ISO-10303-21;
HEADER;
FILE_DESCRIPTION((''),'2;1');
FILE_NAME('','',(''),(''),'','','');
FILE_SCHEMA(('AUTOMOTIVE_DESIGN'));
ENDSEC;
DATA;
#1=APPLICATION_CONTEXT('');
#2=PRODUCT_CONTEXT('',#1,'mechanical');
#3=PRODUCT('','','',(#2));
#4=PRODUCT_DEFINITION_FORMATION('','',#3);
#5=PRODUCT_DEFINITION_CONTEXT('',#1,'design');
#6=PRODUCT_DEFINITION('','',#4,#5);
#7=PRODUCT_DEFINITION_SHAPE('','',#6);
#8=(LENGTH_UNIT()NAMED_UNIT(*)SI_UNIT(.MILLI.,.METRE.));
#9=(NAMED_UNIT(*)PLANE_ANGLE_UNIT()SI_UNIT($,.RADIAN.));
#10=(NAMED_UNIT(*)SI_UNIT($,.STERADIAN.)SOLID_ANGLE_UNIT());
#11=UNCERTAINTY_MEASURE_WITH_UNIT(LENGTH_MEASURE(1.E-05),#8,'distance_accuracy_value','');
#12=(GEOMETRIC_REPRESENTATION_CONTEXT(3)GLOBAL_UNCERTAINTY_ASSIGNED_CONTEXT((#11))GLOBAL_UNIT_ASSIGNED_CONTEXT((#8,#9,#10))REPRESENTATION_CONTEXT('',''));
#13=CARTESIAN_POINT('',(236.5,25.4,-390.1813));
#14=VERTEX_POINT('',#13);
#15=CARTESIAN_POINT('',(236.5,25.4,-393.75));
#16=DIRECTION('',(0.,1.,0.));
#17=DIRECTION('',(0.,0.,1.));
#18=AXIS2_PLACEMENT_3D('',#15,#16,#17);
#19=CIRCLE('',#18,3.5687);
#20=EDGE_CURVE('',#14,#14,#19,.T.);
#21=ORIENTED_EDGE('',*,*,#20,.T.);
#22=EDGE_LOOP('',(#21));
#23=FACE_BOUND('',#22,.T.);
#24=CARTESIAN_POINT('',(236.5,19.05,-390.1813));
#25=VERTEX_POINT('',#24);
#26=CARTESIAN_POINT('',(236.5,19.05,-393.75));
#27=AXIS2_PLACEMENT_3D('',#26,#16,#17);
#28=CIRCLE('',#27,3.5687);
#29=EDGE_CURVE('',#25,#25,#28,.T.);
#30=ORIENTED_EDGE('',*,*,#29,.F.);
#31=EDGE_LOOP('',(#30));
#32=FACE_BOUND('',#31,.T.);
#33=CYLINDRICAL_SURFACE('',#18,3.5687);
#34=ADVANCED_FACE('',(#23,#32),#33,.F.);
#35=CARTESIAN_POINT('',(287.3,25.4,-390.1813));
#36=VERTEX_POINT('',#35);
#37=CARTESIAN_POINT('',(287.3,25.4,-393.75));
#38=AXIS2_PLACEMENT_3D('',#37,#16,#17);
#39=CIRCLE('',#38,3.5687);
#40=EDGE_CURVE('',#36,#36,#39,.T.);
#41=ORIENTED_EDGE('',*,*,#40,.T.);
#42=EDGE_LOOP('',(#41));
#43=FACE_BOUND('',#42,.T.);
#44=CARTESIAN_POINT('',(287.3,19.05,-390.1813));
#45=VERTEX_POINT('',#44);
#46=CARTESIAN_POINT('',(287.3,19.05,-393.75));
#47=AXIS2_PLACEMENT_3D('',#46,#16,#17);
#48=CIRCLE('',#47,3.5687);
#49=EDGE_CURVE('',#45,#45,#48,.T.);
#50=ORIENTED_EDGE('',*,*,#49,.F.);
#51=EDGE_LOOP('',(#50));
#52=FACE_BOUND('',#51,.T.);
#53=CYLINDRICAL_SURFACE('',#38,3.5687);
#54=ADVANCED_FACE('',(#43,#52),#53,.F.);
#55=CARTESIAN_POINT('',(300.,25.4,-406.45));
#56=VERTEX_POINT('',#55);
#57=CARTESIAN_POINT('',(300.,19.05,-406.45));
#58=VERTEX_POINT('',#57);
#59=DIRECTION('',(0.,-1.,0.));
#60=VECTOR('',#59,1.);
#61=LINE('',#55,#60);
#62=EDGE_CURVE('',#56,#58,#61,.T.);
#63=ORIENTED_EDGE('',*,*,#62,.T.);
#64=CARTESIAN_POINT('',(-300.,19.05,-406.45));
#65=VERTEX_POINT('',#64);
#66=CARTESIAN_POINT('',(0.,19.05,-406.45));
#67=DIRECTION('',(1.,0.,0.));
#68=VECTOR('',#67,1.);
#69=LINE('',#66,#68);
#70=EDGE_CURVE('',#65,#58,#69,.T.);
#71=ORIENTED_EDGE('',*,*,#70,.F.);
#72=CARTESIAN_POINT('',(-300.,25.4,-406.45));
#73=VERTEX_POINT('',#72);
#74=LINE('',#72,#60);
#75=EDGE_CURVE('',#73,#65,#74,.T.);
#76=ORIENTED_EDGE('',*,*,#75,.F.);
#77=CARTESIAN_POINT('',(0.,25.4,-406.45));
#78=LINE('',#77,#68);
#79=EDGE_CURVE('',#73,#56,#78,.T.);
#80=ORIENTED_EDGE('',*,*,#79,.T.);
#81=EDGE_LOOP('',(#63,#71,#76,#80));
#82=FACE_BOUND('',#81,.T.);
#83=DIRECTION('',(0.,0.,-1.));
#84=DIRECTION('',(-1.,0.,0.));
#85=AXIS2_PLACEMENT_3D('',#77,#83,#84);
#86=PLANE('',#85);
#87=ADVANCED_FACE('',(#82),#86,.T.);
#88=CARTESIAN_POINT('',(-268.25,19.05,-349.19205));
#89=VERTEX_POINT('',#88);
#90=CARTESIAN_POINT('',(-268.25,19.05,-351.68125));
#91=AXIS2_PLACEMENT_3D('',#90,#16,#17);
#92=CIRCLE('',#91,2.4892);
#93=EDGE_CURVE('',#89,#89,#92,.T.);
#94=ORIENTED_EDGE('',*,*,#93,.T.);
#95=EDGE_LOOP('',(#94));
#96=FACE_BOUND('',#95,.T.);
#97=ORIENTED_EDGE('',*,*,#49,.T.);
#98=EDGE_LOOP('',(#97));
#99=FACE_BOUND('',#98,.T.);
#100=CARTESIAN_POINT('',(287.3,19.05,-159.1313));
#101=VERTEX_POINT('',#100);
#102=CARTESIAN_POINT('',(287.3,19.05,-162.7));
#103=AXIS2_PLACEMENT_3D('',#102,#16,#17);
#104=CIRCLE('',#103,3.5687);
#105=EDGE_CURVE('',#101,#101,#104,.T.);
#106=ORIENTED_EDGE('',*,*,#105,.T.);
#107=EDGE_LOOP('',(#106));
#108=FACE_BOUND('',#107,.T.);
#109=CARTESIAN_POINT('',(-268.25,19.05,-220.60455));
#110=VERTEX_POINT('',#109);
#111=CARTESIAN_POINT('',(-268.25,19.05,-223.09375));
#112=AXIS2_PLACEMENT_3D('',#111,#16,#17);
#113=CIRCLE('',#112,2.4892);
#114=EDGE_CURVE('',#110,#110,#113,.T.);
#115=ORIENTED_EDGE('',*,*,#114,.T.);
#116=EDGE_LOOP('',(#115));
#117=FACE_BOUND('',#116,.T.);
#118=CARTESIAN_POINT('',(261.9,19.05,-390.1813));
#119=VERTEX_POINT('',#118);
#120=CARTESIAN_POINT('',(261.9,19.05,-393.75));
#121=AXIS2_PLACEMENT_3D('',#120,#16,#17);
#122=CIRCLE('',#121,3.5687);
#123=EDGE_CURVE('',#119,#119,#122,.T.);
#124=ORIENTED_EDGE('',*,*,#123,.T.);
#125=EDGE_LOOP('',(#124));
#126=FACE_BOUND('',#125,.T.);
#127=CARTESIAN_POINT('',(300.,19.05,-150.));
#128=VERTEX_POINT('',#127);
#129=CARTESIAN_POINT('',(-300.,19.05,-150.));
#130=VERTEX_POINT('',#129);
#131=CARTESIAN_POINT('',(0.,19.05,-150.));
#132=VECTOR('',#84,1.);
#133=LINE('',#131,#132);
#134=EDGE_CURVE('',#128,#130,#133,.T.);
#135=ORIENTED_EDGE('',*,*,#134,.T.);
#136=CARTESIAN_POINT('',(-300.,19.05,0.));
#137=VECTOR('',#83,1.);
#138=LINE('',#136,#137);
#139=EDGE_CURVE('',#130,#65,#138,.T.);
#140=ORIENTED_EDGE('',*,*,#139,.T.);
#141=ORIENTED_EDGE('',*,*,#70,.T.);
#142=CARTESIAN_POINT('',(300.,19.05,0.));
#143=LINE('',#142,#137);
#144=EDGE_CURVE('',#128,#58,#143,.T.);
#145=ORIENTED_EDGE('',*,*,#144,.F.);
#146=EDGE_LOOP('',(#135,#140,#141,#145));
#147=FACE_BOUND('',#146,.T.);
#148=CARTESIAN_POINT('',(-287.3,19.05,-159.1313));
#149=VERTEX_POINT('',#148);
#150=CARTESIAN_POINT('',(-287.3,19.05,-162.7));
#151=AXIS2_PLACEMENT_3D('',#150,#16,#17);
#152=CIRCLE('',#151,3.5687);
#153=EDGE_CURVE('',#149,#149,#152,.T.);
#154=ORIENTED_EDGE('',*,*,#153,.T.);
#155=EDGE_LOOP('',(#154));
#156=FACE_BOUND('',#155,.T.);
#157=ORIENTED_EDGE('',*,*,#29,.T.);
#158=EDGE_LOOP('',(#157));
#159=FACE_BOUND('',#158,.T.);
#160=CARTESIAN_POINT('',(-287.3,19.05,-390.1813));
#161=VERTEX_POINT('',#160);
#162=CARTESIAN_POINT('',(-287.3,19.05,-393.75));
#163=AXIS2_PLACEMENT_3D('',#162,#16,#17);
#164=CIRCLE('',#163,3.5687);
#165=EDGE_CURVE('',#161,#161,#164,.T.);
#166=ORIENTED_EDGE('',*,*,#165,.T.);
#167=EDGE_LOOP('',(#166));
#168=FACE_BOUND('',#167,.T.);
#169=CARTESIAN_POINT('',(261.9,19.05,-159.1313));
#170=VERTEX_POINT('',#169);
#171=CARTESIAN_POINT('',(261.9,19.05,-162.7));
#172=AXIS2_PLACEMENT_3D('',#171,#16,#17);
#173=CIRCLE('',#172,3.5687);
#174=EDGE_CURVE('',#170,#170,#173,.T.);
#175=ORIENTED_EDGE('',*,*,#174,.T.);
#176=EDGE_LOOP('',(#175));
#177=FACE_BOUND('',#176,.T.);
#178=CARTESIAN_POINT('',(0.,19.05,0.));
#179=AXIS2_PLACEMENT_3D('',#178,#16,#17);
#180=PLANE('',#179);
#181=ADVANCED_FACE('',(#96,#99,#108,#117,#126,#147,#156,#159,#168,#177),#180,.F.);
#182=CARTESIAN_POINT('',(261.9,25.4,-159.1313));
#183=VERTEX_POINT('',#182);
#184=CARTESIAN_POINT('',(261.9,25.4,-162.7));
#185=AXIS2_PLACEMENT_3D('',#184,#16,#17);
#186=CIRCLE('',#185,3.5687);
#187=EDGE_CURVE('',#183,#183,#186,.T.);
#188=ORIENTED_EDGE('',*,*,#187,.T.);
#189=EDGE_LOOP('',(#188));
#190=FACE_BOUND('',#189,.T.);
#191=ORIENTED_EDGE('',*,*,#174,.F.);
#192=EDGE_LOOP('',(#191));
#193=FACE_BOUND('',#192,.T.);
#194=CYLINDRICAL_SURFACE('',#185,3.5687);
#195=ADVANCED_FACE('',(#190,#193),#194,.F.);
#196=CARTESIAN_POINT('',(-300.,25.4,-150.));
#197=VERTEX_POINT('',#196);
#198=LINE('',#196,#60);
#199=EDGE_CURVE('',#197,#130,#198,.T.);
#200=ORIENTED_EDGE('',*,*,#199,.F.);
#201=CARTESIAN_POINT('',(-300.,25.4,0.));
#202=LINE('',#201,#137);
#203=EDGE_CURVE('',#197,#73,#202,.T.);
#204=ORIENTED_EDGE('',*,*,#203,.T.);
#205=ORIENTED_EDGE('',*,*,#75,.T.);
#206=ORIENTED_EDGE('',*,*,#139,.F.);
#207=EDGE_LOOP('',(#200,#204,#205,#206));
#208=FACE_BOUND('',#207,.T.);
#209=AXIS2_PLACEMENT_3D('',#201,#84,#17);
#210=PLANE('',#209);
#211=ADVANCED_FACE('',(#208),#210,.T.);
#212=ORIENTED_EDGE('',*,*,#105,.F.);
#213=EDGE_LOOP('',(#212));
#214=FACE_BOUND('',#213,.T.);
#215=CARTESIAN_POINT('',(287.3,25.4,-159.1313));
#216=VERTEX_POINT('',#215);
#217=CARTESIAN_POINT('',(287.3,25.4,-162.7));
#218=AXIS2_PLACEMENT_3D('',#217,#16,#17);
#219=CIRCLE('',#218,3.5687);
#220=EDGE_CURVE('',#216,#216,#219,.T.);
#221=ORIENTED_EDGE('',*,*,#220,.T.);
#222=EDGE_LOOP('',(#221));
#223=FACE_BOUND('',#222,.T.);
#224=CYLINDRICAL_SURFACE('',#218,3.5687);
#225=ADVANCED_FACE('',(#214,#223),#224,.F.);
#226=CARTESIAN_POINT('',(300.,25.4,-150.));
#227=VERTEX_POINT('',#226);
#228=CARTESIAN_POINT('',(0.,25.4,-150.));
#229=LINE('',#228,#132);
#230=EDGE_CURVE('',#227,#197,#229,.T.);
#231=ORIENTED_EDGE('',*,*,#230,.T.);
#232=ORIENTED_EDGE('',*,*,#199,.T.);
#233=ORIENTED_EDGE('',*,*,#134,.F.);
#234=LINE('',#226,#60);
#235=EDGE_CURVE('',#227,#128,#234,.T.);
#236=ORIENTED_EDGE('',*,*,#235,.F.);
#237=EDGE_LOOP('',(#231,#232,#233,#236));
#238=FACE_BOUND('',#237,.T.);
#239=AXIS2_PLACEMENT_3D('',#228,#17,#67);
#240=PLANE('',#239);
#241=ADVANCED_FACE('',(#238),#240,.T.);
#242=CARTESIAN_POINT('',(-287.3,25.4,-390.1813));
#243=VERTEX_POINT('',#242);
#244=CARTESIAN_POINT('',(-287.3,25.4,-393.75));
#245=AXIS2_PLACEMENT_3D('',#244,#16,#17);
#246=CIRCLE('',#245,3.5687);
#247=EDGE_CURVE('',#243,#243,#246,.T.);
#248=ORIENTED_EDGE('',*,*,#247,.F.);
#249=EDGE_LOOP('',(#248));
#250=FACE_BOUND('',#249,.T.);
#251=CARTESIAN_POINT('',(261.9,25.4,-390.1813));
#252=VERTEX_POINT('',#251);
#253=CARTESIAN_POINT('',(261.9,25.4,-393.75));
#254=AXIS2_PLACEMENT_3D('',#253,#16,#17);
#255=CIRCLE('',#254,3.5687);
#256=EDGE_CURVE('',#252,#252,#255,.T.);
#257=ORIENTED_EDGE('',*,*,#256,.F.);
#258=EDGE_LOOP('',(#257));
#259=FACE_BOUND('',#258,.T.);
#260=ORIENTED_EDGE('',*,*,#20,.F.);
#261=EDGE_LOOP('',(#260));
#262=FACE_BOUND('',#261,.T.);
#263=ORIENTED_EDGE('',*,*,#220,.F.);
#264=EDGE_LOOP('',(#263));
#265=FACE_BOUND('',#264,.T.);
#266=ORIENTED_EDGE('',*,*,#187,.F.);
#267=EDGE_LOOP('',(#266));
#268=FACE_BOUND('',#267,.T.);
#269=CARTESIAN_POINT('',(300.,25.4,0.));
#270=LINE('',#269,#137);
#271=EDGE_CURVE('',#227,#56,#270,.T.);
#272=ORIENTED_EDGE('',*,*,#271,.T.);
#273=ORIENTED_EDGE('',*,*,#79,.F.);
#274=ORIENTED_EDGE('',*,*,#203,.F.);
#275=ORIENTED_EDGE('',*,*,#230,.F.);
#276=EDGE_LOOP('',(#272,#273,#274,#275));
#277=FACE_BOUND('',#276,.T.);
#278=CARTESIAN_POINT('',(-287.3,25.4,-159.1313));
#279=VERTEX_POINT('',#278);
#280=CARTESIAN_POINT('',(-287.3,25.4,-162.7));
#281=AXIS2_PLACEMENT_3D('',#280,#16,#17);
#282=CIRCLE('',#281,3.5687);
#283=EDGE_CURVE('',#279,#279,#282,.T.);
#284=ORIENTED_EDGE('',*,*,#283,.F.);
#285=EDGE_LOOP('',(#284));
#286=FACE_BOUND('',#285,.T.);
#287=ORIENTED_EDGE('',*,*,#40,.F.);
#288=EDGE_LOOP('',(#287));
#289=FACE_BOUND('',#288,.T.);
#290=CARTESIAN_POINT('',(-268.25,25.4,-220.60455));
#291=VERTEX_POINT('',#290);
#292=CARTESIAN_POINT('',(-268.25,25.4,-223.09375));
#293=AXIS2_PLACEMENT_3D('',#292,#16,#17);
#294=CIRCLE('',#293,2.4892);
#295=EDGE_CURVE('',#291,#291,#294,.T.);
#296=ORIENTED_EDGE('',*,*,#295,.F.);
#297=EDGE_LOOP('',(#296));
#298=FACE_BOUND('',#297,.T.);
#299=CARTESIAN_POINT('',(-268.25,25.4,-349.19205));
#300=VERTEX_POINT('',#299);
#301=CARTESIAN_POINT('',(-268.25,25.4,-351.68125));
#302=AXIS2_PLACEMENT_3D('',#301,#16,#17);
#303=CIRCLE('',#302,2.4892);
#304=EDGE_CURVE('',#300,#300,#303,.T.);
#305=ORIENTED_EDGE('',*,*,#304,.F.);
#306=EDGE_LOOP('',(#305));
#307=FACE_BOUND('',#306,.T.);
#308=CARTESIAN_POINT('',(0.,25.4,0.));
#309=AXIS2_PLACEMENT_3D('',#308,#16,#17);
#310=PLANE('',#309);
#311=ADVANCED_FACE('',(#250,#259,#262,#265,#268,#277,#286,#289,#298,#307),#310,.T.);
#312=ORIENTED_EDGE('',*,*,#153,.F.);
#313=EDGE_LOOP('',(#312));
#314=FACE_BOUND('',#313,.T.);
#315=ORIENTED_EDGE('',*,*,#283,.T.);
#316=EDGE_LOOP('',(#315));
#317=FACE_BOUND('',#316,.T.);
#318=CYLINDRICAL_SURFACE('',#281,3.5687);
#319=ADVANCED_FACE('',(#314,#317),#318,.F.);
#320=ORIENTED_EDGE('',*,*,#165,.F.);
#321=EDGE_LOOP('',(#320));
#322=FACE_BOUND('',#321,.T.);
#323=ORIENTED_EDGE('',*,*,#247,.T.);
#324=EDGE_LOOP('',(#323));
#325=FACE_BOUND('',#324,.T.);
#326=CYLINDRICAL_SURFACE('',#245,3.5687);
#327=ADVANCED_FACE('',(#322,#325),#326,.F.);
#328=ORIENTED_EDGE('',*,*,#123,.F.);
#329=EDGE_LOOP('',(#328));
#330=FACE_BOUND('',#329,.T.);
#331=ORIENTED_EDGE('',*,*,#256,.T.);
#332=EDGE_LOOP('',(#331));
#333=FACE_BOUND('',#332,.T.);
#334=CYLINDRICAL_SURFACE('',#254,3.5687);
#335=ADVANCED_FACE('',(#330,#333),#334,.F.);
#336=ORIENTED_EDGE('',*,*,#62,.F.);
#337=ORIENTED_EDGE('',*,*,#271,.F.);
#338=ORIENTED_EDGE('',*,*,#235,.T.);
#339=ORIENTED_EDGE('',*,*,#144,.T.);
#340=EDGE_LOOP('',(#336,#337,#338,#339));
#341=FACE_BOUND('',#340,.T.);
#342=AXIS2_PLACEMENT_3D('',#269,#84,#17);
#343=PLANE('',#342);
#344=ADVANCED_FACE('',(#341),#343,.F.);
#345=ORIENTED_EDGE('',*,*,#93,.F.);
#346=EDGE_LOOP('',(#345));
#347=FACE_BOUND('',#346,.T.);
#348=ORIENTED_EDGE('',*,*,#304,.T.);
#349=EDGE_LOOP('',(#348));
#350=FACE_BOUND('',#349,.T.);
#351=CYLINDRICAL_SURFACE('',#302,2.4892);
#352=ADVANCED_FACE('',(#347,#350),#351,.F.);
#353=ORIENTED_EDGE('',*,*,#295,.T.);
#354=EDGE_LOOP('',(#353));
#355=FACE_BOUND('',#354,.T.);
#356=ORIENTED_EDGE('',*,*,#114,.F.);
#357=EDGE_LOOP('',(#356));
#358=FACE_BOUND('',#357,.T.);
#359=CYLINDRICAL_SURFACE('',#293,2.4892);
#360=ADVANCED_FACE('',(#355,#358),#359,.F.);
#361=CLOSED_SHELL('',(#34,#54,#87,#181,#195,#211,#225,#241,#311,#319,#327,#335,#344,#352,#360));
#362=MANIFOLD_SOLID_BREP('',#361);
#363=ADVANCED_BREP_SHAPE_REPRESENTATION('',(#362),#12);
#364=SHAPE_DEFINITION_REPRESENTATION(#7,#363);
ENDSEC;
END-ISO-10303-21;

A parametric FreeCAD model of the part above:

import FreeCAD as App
import Part
import Sketcher

V = App.Vector
Q = App.Units.Quantity


def edges_at(feature, points):
    """Names of the edges that pass closest to the given points."""
    edges = feature.Shape.Edges
    near = lambda p: min(range(len(edges)), key=lambda i: edges[i].distToShape(Part.Vertex(*p))[0])
    return sorted({f"Edge{near(p) + 1}" for p in points})

doc = App.newDocument("Part")
params = doc.addObject("Spreadsheet::Sheet", "Params")
for row, (alias, value) in enumerate([
    ("pad1_length", "0.25 in"),
    ("sketch2_width", "0.25 in"),
    ("groove_angle", "360 deg"),
    ("linearpattern_pitch", "231.05 mm"),
    ("linearpattern2_pitch", "595.822744 mm"),
    ("linearpattern3_pitch", "619.313541 mm"),
    ("linearpattern4_pitch", "523.8 mm"),
    ("linearpattern5_pitch", "549.2 mm"),
    ("linearpattern6_pitch", "574.6 mm"),
    ("sketch3_width", "0.25 in"),
    ("sketch3_height", "0.098 in"),
    ("groove2_angle", "360 deg"),
    ("linearpattern7_pitch", "5.0625 in"),
    ("pad2_length", "0.25 in"),
    ("sketch5_width", "0.25 in"),
    ("groove3_angle", "360 deg"),
    ("linearpattern8_pitch", "1 in"),
    ("linearpattern9_pitch", "2 in"),
    ("linearpattern10_pitch", "231.05 mm"),
    ("linearpattern11_pitch", "487.872235 mm"),
    ("linearpattern12_pitch", "476.368699 mm"),
    ("linearpattern13_pitch", "429.692 mm"),
    ("sketch6_width", "0.25 in"),
    ("sketch6_height", "0.098 in"),
    ("groove4_angle", "360 deg"),
    ("linearpattern14_pitch", "5.0625 in"),
    ("pad3_length", "0.25 in"),
    ("sketch8_width", "0.25 in"),
    ("groove5_angle", "360 deg"),
    ("linearpattern15_pitch", "1 in"),
    ("linearpattern16_pitch", "249.2 mm"),
    ("linearpattern17_pitch", "496.72513 mm"),
    ("linearpattern18_pitch", "429.692 mm"),
    ("linearpattern19_pitch", "430.442069 mm"),
    ("sketch9_width", "2 in"),
    ("sketch9_width2", "1 in"),
    ("sketch9_diameter", "0.281 in"),
    ("pad4_length", "0.25 in"),
    ("fillet_radius", "0.25 in"),
    ("sketch10_width", "6 in"),
    ("sketch10_height", "1 in"),
    ("sketch10_diameter", "0.281 in"),
    ("pad5_length", "0.25 in"),
    ("sketch11_width", "1 in"),
    ("sketch11_height", "4 in"),
    ("sketch11_diameter", "0.281 in"),
    ("pad6_length", "0.25 in"),
], start=1):
    params.set(f"A{row}", alias)
    params.set(f"B{row}", "=" + value)
    params.setAlias(f"B{row}", alias)

body = doc.addObject("PartDesign::Body", "Body")

# Sketch on XZ plane
sketch1 = body.newObject("Sketcher::SketchObject", "Sketch")
sketch1.AttachmentSupport = (doc.getObject("XZ_Plane"), [""])
sketch1.MapMode = "FlatFace"
sketch1.AttachmentOffset = App.Placement(V(0, 0, -0.75 * 25.4), App.Rotation())
sketch1.addGeometry([
    Part.LineSegment(V(-300, -406, 0), V(-300, -150, 0)),
    Part.LineSegment(V(-300, -150, 0), V(300, -150, 0)),
    Part.LineSegment(V(300, -150, 0), V(300, -406, 0)),
    Part.LineSegment(V(300, -406, 0), V(-300, -406, 0)),
], False)
sketch1.addConstraint([
    Sketcher.Constraint("Coincident", 0, 2, 1, 1),
    Sketcher.Constraint("Coincident", 1, 2, 2, 1),
    Sketcher.Constraint("Coincident", 2, 2, 3, 1),
    Sketcher.Constraint("Coincident", 3, 2, 0, 1),
    Sketcher.Constraint("Vertical", 0),
    Sketcher.Constraint("Horizontal", 1),
    Sketcher.Constraint("Vertical", 2),
    Sketcher.Constraint("Horizontal", 3),
    Sketcher.Constraint("DistanceX", 1, 1, 1, 2, Q("600 mm")),
    Sketcher.Constraint("DistanceY", 0, 1, 0, 2, Q("256.45 mm")),
    Sketcher.Constraint("DistanceX", 0, 2, -1, 1, Q("300 mm")),
    Sketcher.Constraint("DistanceY", 0, 2, -1, 1, Q("150 mm")),
])
pad1 = body.newObject("PartDesign::Pad", "Pad")
pad1.Profile = sketch1
pad1.setExpression("Length", "Params.pad1_length")
pad1.Reversed = True

# Sketch on YZ plane
sketch2 = body.newObject("Sketcher::SketchObject", "Sketch001")
sketch2.AttachmentSupport = (doc.getObject("YZ_Plane"), [""])
sketch2.MapMode = "FlatFace"
sketch2.AttachmentOffset = App.Placement(V(0, 0, -287.3), App.Rotation())
sketch2.addGeometry([
    Part.LineSegment(V(19.1, -393.8, 0), V(25.4, -393.8, 0)),
    Part.LineSegment(V(25.4, -393.8, 0), V(25.4, -390.2, 0)),
    Part.LineSegment(V(25.4, -390.2, 0), V(19.1, -390.2, 0)),
    Part.LineSegment(V(19.1, -390.2, 0), V(19.1, -393.8, 0)),
], False)
sketch2.addGeometry(Part.LineSegment(V(25.4, -393.8, 0), V(19.1, -393.8, 0)), True)  # axis
sketch2.addConstraint([
    Sketcher.Constraint("Coincident", 0, 2, 1, 1),
    Sketcher.Constraint("Coincident", 1, 2, 2, 1),
    Sketcher.Constraint("Coincident", 2, 2, 3, 1),
    Sketcher.Constraint("Coincident", 3, 2, 0, 1),
    Sketcher.Constraint("Horizontal", 0),
    Sketcher.Constraint("Vertical", 1),
    Sketcher.Constraint("Horizontal", 2),
    Sketcher.Constraint("Vertical", 3),
    Sketcher.Constraint("Horizontal", 4),
    Sketcher.Constraint("Coincident", 4, 1, 0, 2),
    Sketcher.Constraint("Vertical", 2, 2, 4, 2),
    Sketcher.Constraint("DistanceX", -1, 1, 0, 2, Q("1 in")),
    Sketcher.Constraint("DistanceX", 0, 1, 0, 2, Q("0.25 in")),
    Sketcher.Constraint("DistanceY", 1, 1, 1, 2, Q("0.1405 in")),
    Sketcher.Constraint("DistanceY", 0, 2, -1, 1, Q("393.75 mm")),
])
sketch2.setExpression("Constraints[12]", "Params.sketch2_width")
groove = body.newObject("PartDesign::Groove", "Groove")
groove.Profile = sketch2
groove.ReferenceAxis = (sketch2, ["Axis0"])
groove.setExpression("Angle", "Params.groove_angle")
doc.recompute()

linearpattern = body.newObject("PartDesign::LinearPattern", "LinearPattern")
linearpattern.Originals = [groove]
linearpattern.Direction = (doc.getObject("Z_Axis"), [""])
linearpattern.Mode = "offset"
linearpattern.setExpression("Offset", "Params.linearpattern_pitch")
linearpattern.Occurrences = 2
body.Tip = linearpattern
doc.recompute()

datumline = body.newObject("PartDesign::Line", "DatumLine")
datumline.Placement = App.Placement(V(0, 0, 0), App.Rotation(V(0, 0, 1), V(0.921750647, 0, 0.387783115)))
linearpattern2 = body.newObject("PartDesign::LinearPattern", "LinearPattern001")
linearpattern2.Originals = [groove]
linearpattern2.Direction = (datumline, [""])
linearpattern2.Mode = "offset"
linearpattern2.setExpression("Offset", "Params.linearpattern2_pitch")
linearpattern2.Occurrences = 2
body.Tip = linearpattern2
doc.recompute()

datumline2 = body.newObject("PartDesign::Line", "DatumLine001")
datumline2.Placement = App.Placement(V(0, 0, 0), App.Rotation(V(0, 0, 1), V(0.927801447, 0, 0.373074355)))
linearpattern3 = body.newObject("PartDesign::LinearPattern", "LinearPattern002")
linearpattern3.Originals = [groove]
linearpattern3.Direction = (datumline2, [""])
linearpattern3.Mode = "offset"
linearpattern3.setExpression("Offset", "Params.linearpattern3_pitch")
linearpattern3.Occurrences = 2
body.Tip = linearpattern3
doc.recompute()

linearpattern4 = body.newObject("PartDesign::LinearPattern", "LinearPattern003")
linearpattern4.Originals = [groove]
linearpattern4.Direction = (doc.getObject("X_Axis"), [""])
linearpattern4.Mode = "offset"
linearpattern4.setExpression("Offset", "Params.linearpattern4_pitch")
linearpattern4.Occurrences = 2
body.Tip = linearpattern4
doc.recompute()

linearpattern5 = body.newObject("PartDesign::LinearPattern", "LinearPattern004")
linearpattern5.Originals = [groove]
linearpattern5.Direction = (doc.getObject("X_Axis"), [""])
linearpattern5.Mode = "offset"
linearpattern5.setExpression("Offset", "Params.linearpattern5_pitch")
linearpattern5.Occurrences = 2
body.Tip = linearpattern5
doc.recompute()

linearpattern6 = body.newObject("PartDesign::LinearPattern", "LinearPattern005")
linearpattern6.Originals = [groove]
linearpattern6.Direction = (doc.getObject("X_Axis"), [""])
linearpattern6.Mode = "offset"
linearpattern6.setExpression("Offset", "Params.linearpattern6_pitch")
linearpattern6.Occurrences = 2
body.Tip = linearpattern6

# Sketch on YZ plane
sketch3 = body.newObject("Sketcher::SketchObject", "Sketch002")
sketch3.AttachmentSupport = (doc.getObject("YZ_Plane"), [""])
sketch3.MapMode = "FlatFace"
sketch3.AttachmentOffset = App.Placement(V(0, 0, -268.25), App.Rotation())
sketch3.addGeometry([
    Part.LineSegment(V(19.1, -351.7, 0), V(25.4, -351.7, 0)),
    Part.LineSegment(V(25.4, -351.7, 0), V(25.4, -349.2, 0)),
    Part.LineSegment(V(25.4, -349.2, 0), V(19.1, -349.2, 0)),
    Part.LineSegment(V(19.1, -349.2, 0), V(19.1, -351.7, 0)),
], False)
sketch3.addGeometry(Part.LineSegment(V(25.4, -351.7, 0), V(19.1, -351.7, 0)), True)  # axis
sketch3.addConstraint([
    Sketcher.Constraint("Coincident", 0, 2, 1, 1),
    Sketcher.Constraint("Coincident", 1, 2, 2, 1),
    Sketcher.Constraint("Coincident", 2, 2, 3, 1),
    Sketcher.Constraint("Coincident", 3, 2, 0, 1),
    Sketcher.Constraint("Horizontal", 0),
    Sketcher.Constraint("Vertical", 1),
    Sketcher.Constraint("Horizontal", 2),
    Sketcher.Constraint("Vertical", 3),
    Sketcher.Constraint("Horizontal", 4),
    Sketcher.Constraint("Coincident", 4, 1, 0, 2),
    Sketcher.Constraint("Vertical", 2, 2, 4, 2),
    Sketcher.Constraint("DistanceX", -1, 1, 0, 2, Q("1 in")),
    Sketcher.Constraint("DistanceX", 0, 1, 0, 2, Q("0.25 in")),
    Sketcher.Constraint("DistanceY", 1, 1, 1, 2, Q("0.098 in")),
    Sketcher.Constraint("DistanceY", 0, 2, -1, 1, Q("351.68125 mm")),
])
sketch3.setExpression("Constraints[12]", "Params.sketch3_width")
sketch3.setExpression("Constraints[13]", "Params.sketch3_height")
groove2 = body.newObject("PartDesign::Groove", "Groove001")
groove2.Profile = sketch3
groove2.ReferenceAxis = (sketch3, ["Axis0"])
groove2.setExpression("Angle", "Params.groove2_angle")
doc.recompute()

linearpattern7 = body.newObject("PartDesign::LinearPattern", "LinearPattern006")
linearpattern7.Originals = [groove2]
linearpattern7.Direction = (doc.getObject("Z_Axis"), [""])
linearpattern7.Mode = "offset"
linearpattern7.setExpression("Offset", "Params.linearpattern7_pitch")
linearpattern7.Occurrences = 2
body.Tip = linearpattern7
body2 = doc.addObject("PartDesign::Body", "Body001")

# Sketch on XZ plane
sketch4 = body2.newObject("Sketcher::SketchObject", "Sketch003")
sketch4.AttachmentSupport = (doc.getObject("XZ_Plane001"), [""])
sketch4.MapMode = "FlatFace"
sketch4.AttachmentOffset = App.Placement(V(0, 0, -0.75 * 25.4), App.Rotation())
sketch4.addGeometry([
    Part.LineSegment(V(300, -406, 0), V(300, -150, 0)),
    Part.LineSegment(V(300, -150, 0), V(755, -150, 0)),
    Part.LineSegment(V(755, -150, 0), V(755, -406, 0)),
    Part.LineSegment(V(755, -406, 0), V(300, -406, 0)),
], False)
sketch4.addConstraint([
    Sketcher.Constraint("Coincident", 0, 2, 1, 1),
    Sketcher.Constraint("Coincident", 1, 2, 2, 1),
    Sketcher.Constraint("Coincident", 2, 2, 3, 1),
    Sketcher.Constraint("Coincident", 3, 2, 0, 1),
    Sketcher.Constraint("Vertical", 0),
    Sketcher.Constraint("Horizontal", 1),
    Sketcher.Constraint("Vertical", 2),
    Sketcher.Constraint("Horizontal", 3),
    Sketcher.Constraint("DistanceX", 1, 1, 1, 2, Q("455.092 mm")),
    Sketcher.Constraint("DistanceY", 0, 1, 0, 2, Q("256.45 mm")),
    Sketcher.Constraint("DistanceX", -1, 1, 0, 2, Q("300 mm")),
    Sketcher.Constraint("DistanceY", 0, 2, -1, 1, Q("150 mm")),
])
pad2 = body2.newObject("PartDesign::Pad", "Pad001")
pad2.Profile = sketch4
pad2.setExpression("Length", "Params.pad2_length")
pad2.Reversed = True

# Sketch on YZ plane
sketch5 = body2.newObject("Sketcher::SketchObject", "Sketch004")
sketch5.AttachmentSupport = (doc.getObject("YZ_Plane001"), [""])
sketch5.MapMode = "FlatFace"
sketch5.AttachmentOffset = App.Placement(V(0, 0, 312.7), App.Rotation())
sketch5.addGeometry([
    Part.LineSegment(V(19.1, -393.8, 0), V(25.4, -393.8, 0)),
    Part.LineSegment(V(25.4, -393.8, 0), V(25.4, -390.2, 0)),
    Part.LineSegment(V(25.4, -390.2, 0), V(19.1, -390.2, 0)),
    Part.LineSegment(V(19.1, -390.2, 0), V(19.1, -393.8, 0)),
], False)
sketch5.addGeometry(Part.LineSegment(V(25.4, -393.8, 0), V(19.1, -393.8, 0)), True)  # axis
sketch5.addConstraint([
    Sketcher.Constraint("Coincident", 0, 2, 1, 1),
    Sketcher.Constraint("Coincident", 1, 2, 2, 1),
    Sketcher.Constraint("Coincident", 2, 2, 3, 1),
    Sketcher.Constraint("Coincident", 3, 2, 0, 1),
    Sketcher.Constraint("Horizontal", 0),
    Sketcher.Constraint("Vertical", 1),
    Sketcher.Constraint("Horizontal", 2),
    Sketcher.Constraint("Vertical", 3),
    Sketcher.Constraint("Horizontal", 4),
    Sketcher.Constraint("Coincident", 4, 1, 0, 2),
    Sketcher.Constraint("Vertical", 2, 2, 4, 2),
    Sketcher.Constraint("DistanceX", -1, 1, 0, 2, Q("1 in")),
    Sketcher.Constraint("DistanceX", 0, 1, 0, 2, Q("0.25 in")),
    Sketcher.Constraint("DistanceY", 1, 1, 1, 2, Q("0.1405 in")),
    Sketcher.Constraint("DistanceY", 0, 2, -1, 1, Q("393.75 mm")),
])
sketch5.setExpression("Constraints[12]", "Params.sketch5_width")
groove3 = body2.newObject("PartDesign::Groove", "Groove002")
groove3.Profile = sketch5
groove3.ReferenceAxis = (sketch5, ["Axis0"])
groove3.setExpression("Angle", "Params.groove3_angle")
doc.recompute()

linearpattern8 = body2.newObject("PartDesign::LinearPattern", "LinearPattern007")
linearpattern8.Originals = [groove3]
linearpattern8.Direction = (doc.getObject("X_Axis001"), [""])
linearpattern8.Mode = "offset"
linearpattern8.setExpression("Offset", "Params.linearpattern8_pitch")
linearpattern8.Occurrences = 2
body2.Tip = linearpattern8
doc.recompute()

linearpattern9 = body2.newObject("PartDesign::LinearPattern", "LinearPattern008")
linearpattern9.Originals = [groove3]
linearpattern9.Direction = (doc.getObject("X_Axis001"), [""])
linearpattern9.Mode = "offset"
linearpattern9.setExpression("Offset", "Params.linearpattern9_pitch")
linearpattern9.Occurrences = 2
body2.Tip = linearpattern9
doc.recompute()

linearpattern10 = body2.newObject("PartDesign::LinearPattern", "LinearPattern009")
linearpattern10.Originals = [groove3]
linearpattern10.Direction = (doc.getObject("Z_Axis001"), [""])
linearpattern10.Mode = "offset"
linearpattern10.setExpression("Offset", "Params.linearpattern10_pitch")
linearpattern10.Occurrences = 2
body2.Tip = linearpattern10
doc.recompute()

datumline3 = body2.newObject("PartDesign::Line", "DatumLine002")
datumline3.Placement = App.Placement(V(0, 0, 0), App.Rotation(V(0, 0, 1), V(0.880746986, 0, 0.473587107)))
linearpattern11 = body2.newObject("PartDesign::LinearPattern", "LinearPattern010")
linearpattern11.Originals = [groove3]
linearpattern11.Direction = (datumline3, [""])
linearpattern11.Mode = "offset"
linearpattern11.setExpression("Offset", "Params.linearpattern11_pitch")
linearpattern11.Occurrences = 2
body2.Tip = linearpattern11
doc.recompute()

datumline4 = body2.newObject("PartDesign::Line", "DatumLine003")
datumline4.Placement = App.Placement(V(0, 0, 0), App.Rotation(V(0, 0, 1), V(0.902015605, 0, 0.431703427)))
linearpattern12 = body2.newObject("PartDesign::LinearPattern", "LinearPattern011")
linearpattern12.Originals = [groove3]
linearpattern12.Direction = (datumline4, [""])
linearpattern12.Mode = "offset"
linearpattern12.setExpression("Offset", "Params.linearpattern12_pitch")
linearpattern12.Occurrences = 2
body2.Tip = linearpattern12
doc.recompute()

linearpattern13 = body2.newObject("PartDesign::LinearPattern", "LinearPattern012")
linearpattern13.Originals = [groove3]
linearpattern13.Direction = (doc.getObject("X_Axis001"), [""])
linearpattern13.Mode = "offset"
linearpattern13.setExpression("Offset", "Params.linearpattern13_pitch")
linearpattern13.Occurrences = 2
body2.Tip = linearpattern13

# Sketch on YZ plane
sketch6 = body2.newObject("Sketcher::SketchObject", "Sketch005")
sketch6.AttachmentSupport = (doc.getObject("YZ_Plane001"), [""])
sketch6.MapMode = "FlatFace"
sketch6.AttachmentOffset = App.Placement(V(0, 0, 723.342), App.Rotation())
sketch6.addGeometry([
    Part.LineSegment(V(19.1, -351.7, 0), V(25.4, -351.7, 0)),
    Part.LineSegment(V(25.4, -351.7, 0), V(25.4, -349.2, 0)),
    Part.LineSegment(V(25.4, -349.2, 0), V(19.1, -349.2, 0)),
    Part.LineSegment(V(19.1, -349.2, 0), V(19.1, -351.7, 0)),
], False)
sketch6.addGeometry(Part.LineSegment(V(25.4, -351.7, 0), V(19.1, -351.7, 0)), True)  # axis
sketch6.addConstraint([
    Sketcher.Constraint("Coincident", 0, 2, 1, 1),
    Sketcher.Constraint("Coincident", 1, 2, 2, 1),
    Sketcher.Constraint("Coincident", 2, 2, 3, 1),
    Sketcher.Constraint("Coincident", 3, 2, 0, 1),
    Sketcher.Constraint("Horizontal", 0),
    Sketcher.Constraint("Vertical", 1),
    Sketcher.Constraint("Horizontal", 2),
    Sketcher.Constraint("Vertical", 3),
    Sketcher.Constraint("Horizontal", 4),
    Sketcher.Constraint("Coincident", 4, 1, 0, 2),
    Sketcher.Constraint("Vertical", 2, 2, 4, 2),
    Sketcher.Constraint("DistanceX", -1, 1, 0, 2, Q("1 in")),
    Sketcher.Constraint("DistanceX", 0, 1, 0, 2, Q("0.25 in")),
    Sketcher.Constraint("DistanceY", 1, 1, 1, 2, Q("0.098 in")),
    Sketcher.Constraint("DistanceY", 0, 2, -1, 1, Q("351.68125 mm")),
])
sketch6.setExpression("Constraints[12]", "Params.sketch6_width")
sketch6.setExpression("Constraints[13]", "Params.sketch6_height")
groove4 = body2.newObject("PartDesign::Groove", "Groove003")
groove4.Profile = sketch6
groove4.ReferenceAxis = (sketch6, ["Axis0"])
groove4.setExpression("Angle", "Params.groove4_angle")
doc.recompute()

linearpattern14 = body2.newObject("PartDesign::LinearPattern", "LinearPattern013")
linearpattern14.Originals = [groove4]
linearpattern14.Direction = (doc.getObject("Z_Axis001"), [""])
linearpattern14.Mode = "offset"
linearpattern14.setExpression("Offset", "Params.linearpattern14_pitch")
linearpattern14.Occurrences = 2
body2.Tip = linearpattern14
body3 = doc.addObject("PartDesign::Body", "Body002")

# Sketch on XZ plane
sketch7 = body3.newObject("Sketcher::SketchObject", "Sketch006")
sketch7.AttachmentSupport = (doc.getObject("XZ_Plane002"), [""])
sketch7.MapMode = "FlatFace"
sketch7.AttachmentOffset = App.Placement(V(0, 0, -0.75 * 25.4), App.Rotation())
sketch7.addGeometry([
    Part.LineSegment(V(300, -150, 0), V(300, 150, 0)),
    Part.LineSegment(V(300, 150, 0), V(755, 150, 0)),
    Part.LineSegment(V(755, 150, 0), V(755, -150, 0)),
    Part.LineSegment(V(755, -150, 0), V(300, -150, 0)),
], False)
sketch7.addConstraint([
    Sketcher.Constraint("Coincident", 0, 2, 1, 1),
    Sketcher.Constraint("Coincident", 1, 2, 2, 1),
    Sketcher.Constraint("Coincident", 2, 2, 3, 1),
    Sketcher.Constraint("Coincident", 3, 2, 0, 1),
    Sketcher.Constraint("Vertical", 0),
    Sketcher.Constraint("Horizontal", 1),
    Sketcher.Constraint("Vertical", 2),
    Sketcher.Constraint("Horizontal", 3),
    Sketcher.Constraint("DistanceX", 1, 1, 1, 2, Q("455.092 mm")),
    Sketcher.Constraint("DistanceY", 0, 1, 0, 2, Q("300 mm")),
    Sketcher.Constraint("DistanceX", -1, 1, 0, 2, Q("300 mm")),
    Sketcher.Constraint("DistanceY", -1, 1, 0, 2, Q("150 mm")),
])
pad3 = body3.newObject("PartDesign::Pad", "Pad002")
pad3.Profile = sketch7
pad3.setExpression("Length", "Params.pad3_length")
pad3.Reversed = True

# Sketch on YZ plane
sketch8 = body3.newObject("Sketcher::SketchObject", "Sketch007")
sketch8.AttachmentSupport = (doc.getObject("YZ_Plane002"), [""])
sketch8.MapMode = "FlatFace"
sketch8.AttachmentOffset = App.Placement(V(0, 0, 312.7), App.Rotation())
sketch8.addGeometry([
    Part.LineSegment(V(19.1, -111.9, 0), V(25.4, -111.9, 0)),
    Part.LineSegment(V(25.4, -111.9, 0), V(25.4, -108.3, 0)),
    Part.LineSegment(V(25.4, -108.3, 0), V(19.1, -108.3, 0)),
    Part.LineSegment(V(19.1, -108.3, 0), V(19.1, -111.9, 0)),
], False)
sketch8.addGeometry(Part.LineSegment(V(25.4, -111.9, 0), V(19.1, -111.9, 0)), True)  # axis
sketch8.addConstraint([
    Sketcher.Constraint("Coincident", 0, 2, 1, 1),
    Sketcher.Constraint("Coincident", 1, 2, 2, 1),
    Sketcher.Constraint("Coincident", 2, 2, 3, 1),
    Sketcher.Constraint("Coincident", 3, 2, 0, 1),
    Sketcher.Constraint("Horizontal", 0),
    Sketcher.Constraint("Vertical", 1),
    Sketcher.Constraint("Horizontal", 2),
    Sketcher.Constraint("Vertical", 3),
    Sketcher.Constraint("Horizontal", 4),
    Sketcher.Constraint("Coincident", 4, 1, 0, 2),
    Sketcher.Constraint("Vertical", 2, 2, 4, 2),
    Sketcher.Constraint("DistanceX", -1, 1, 0, 2, Q("1 in")),
    Sketcher.Constraint("DistanceX", 0, 1, 0, 2, Q("0.25 in")),
    Sketcher.Constraint("DistanceY", 1, 1, 1, 2, Q("0.1405 in")),
    Sketcher.Constraint("DistanceY", 0, 2, -1, 1, Q("111.9 mm")),
])
sketch8.setExpression("Constraints[12]", "Params.sketch8_width")
groove5 = body3.newObject("PartDesign::Groove", "Groove004")
groove5.Profile = sketch8
groove5.ReferenceAxis = (sketch8, ["Axis0"])
groove5.setExpression("Angle", "Params.groove5_angle")
doc.recompute()

linearpattern15 = body3.newObject("PartDesign::LinearPattern", "LinearPattern014")
linearpattern15.Originals = [groove5]
linearpattern15.Direction = (doc.getObject("Z_Axis002"), [""])
linearpattern15.Mode = "offset"
linearpattern15.setExpression("Offset", "Params.linearpattern15_pitch")
linearpattern15.Occurrences = 2
linearpattern15.Reversed = True
body3.Tip = linearpattern15
doc.recompute()

linearpattern16 = body3.newObject("PartDesign::LinearPattern", "LinearPattern015")
linearpattern16.Originals = [groove5]
linearpattern16.Direction = (doc.getObject("Z_Axis002"), [""])
linearpattern16.Mode = "offset"
linearpattern16.setExpression("Offset", "Params.linearpattern16_pitch")
linearpattern16.Occurrences = 2
body3.Tip = linearpattern16
doc.recompute()

datumline5 = body3.newObject("PartDesign::Line", "DatumLine004")
datumline5.Placement = App.Placement(V(0, 0, 0), App.Rotation(V(0, 0, 1), V(0.865049851, 0, 0.501685912)))
linearpattern17 = body3.newObject("PartDesign::LinearPattern", "LinearPattern016")
linearpattern17.Originals = [groove5]
linearpattern17.Direction = (datumline5, [""])
linearpattern17.Mode = "offset"
linearpattern17.setExpression("Offset", "Params.linearpattern17_pitch")
linearpattern17.Occurrences = 2
body3.Tip = linearpattern17
doc.recompute()

linearpattern18 = body3.newObject("PartDesign::LinearPattern", "LinearPattern017")
linearpattern18.Originals = [groove5]
linearpattern18.Direction = (doc.getObject("X_Axis002"), [""])
linearpattern18.Mode = "offset"
linearpattern18.setExpression("Offset", "Params.linearpattern18_pitch")
linearpattern18.Occurrences = 2
body3.Tip = linearpattern18
doc.recompute()

datumline6 = body3.newObject("PartDesign::Line", "DatumLine005")
datumline6.Placement = App.Placement(V(0, 0, 0), App.Rotation(V(0, 0, 1), V(0.998257445, 0, -0.059009102)))
linearpattern19 = body3.newObject("PartDesign::LinearPattern", "LinearPattern018")
linearpattern19.Originals = [groove5]
linearpattern19.Direction = (datumline6, [""])
linearpattern19.Mode = "offset"
linearpattern19.setExpression("Offset", "Params.linearpattern19_pitch")
linearpattern19.Occurrences = 2
body3.Tip = linearpattern19
body4 = doc.addObject("PartDesign::Body", "Body003")

# Sketch on XZ plane
sketch9 = body4.newObject("Sketcher::SketchObject", "Sketch008")
sketch9.AttachmentSupport = (doc.getObject("XZ_Plane003"), [""])
sketch9.MapMode = "FlatFace"
sketch9.AttachmentOffset = App.Placement(V(0, 0, -1 * 25.4), App.Rotation())
sketch9.addGeometry([
    Part.LineSegment(V(249.2, -175.4, 0), V(249.2, -150, 0)),  # 0
    Part.LineSegment(V(249.2, -150, 0), V(300, -150, 0)),  # 1
    Part.LineSegment(V(300, -150, 0), V(300, -99.2, 0)),  # 2
    Part.LineSegment(V(300, -99.2, 0), V(325.4, -99.2, 0)),  # 3
    Part.LineSegment(V(325.4, -99.2, 0), V(325.4, -175.4, 0)),  # 4
    Part.LineSegment(V(325.4, -175.4, 0), V(249.2, -175.4, 0)),  # 5
    Part.Circle(V(312.7, -111.9, 0), V(0, 0, 1), 3.6),  # 6
    Part.Circle(V(312.7, -137.3, 0), V(0, 0, 1), 3.6),  # 7
    Part.Circle(V(312.7, -162.7, 0), V(0, 0, 1), 3.6),  # 8
    Part.Circle(V(287.3, -162.7, 0), V(0, 0, 1), 3.6),  # 9
    Part.Circle(V(261.9, -162.7, 0), V(0, 0, 1), 3.6),  # 10
], False)
sketch9.addConstraint([
    Sketcher.Constraint("Coincident", 0, 2, 1, 1),
    Sketcher.Constraint("Coincident", 1, 2, 2, 1),
    Sketcher.Constraint("Coincident", 2, 2, 3, 1),
    Sketcher.Constraint("Coincident", 3, 2, 4, 1),
    Sketcher.Constraint("Coincident", 4, 2, 5, 1),
    Sketcher.Constraint("Coincident", 5, 2, 0, 1),
    Sketcher.Constraint("Vertical", 0),
    Sketcher.Constraint("Horizontal", 1),
    Sketcher.Constraint("Vertical", 2),
    Sketcher.Constraint("Horizontal", 3),
    Sketcher.Constraint("Vertical", 4),
    Sketcher.Constraint("Horizontal", 5),
    Sketcher.Constraint("Equal", 6, 7),
    Sketcher.Constraint("Equal", 7, 8),
    Sketcher.Constraint("Equal", 8, 9),
    Sketcher.Constraint("Equal", 9, 10),
    Sketcher.Constraint("Horizontal", 8, 3, 9, 3),
    Sketcher.Constraint("Horizontal", 9, 3, 10, 3),
    Sketcher.Constraint("Vertical", 6, 3, 7, 3),
    Sketcher.Constraint("Vertical", 7, 3, 8, 3),
    Sketcher.Constraint("Equal", 3, 0),
    Sketcher.Constraint("Equal", 1, 2),
    Sketcher.Constraint("DistanceX", 1, 1, 1, 2, Q("2 in")),
    Sketcher.Constraint("DistanceX", 3, 1, 3, 2, Q("1 in")),
    Sketcher.Constraint("Diameter", 6, Q("0.281 in")),
    Sketcher.Constraint("DistanceY", 7, 3, 6, 3, Q("1 in")),
    Sketcher.Constraint("DistanceY", 8, 3, 7, 3, Q("1 in")),
    Sketcher.Constraint("DistanceX", 9, 3, 8, 3, Q("1 in")),
    Sketcher.Constraint("DistanceX", 10, 3, 9, 3, Q("1 in")),
    Sketcher.Constraint("DistanceX", 0, 2, 10, 3, Q("0.5 in")),
    Sketcher.Constraint("DistanceY", 10, 3, 0, 2, Q("0.5 in")),
    Sketcher.Constraint("DistanceX", -1, 1, 6, 3, Q("312.7 mm")),
    Sketcher.Constraint("DistanceY", 6, 3, -1, 1, Q("111.9 mm")),
])
sketch9.setExpression("Constraints[22]", "Params.sketch9_width")
sketch9.setExpression("Constraints[23]", "Params.sketch9_width2")
sketch9.setExpression("Constraints[24]", "Params.sketch9_diameter")
pad4 = body4.newObject("PartDesign::Pad", "Pad003")
pad4.Profile = sketch9
pad4.setExpression("Length", "Params.pad4_length")
pad4.Reversed = True
doc.recompute()

fillet = body4.newObject("PartDesign::Fillet", "Fillet")
fillet.Base = (pad4, edges_at(pad4, [
    (249.2, 28.575, -150),
    (249.2, 28.575, -175.4),
    (325.4, 28.575, -175.4),
    (325.4, 28.575, -99.2),
    (300, 28.575, -99.2),
]))
fillet.setExpression("Radius", "Params.fillet_radius")
body5 = doc.addObject("PartDesign::Body", "Body004")

# Sketch on XZ plane
sketch10 = body5.newObject("Sketcher::SketchObject", "Sketch009")
sketch10.AttachmentSupport = (doc.getObject("XZ_Plane004"), [""])
sketch10.MapMode = "FlatFace"
sketch10.AttachmentOffset = App.Placement(V(0, 0, -1 * 25.4), App.Rotation())
sketch10.addGeometry([
    Part.LineSegment(V(223.8, -406.4, 0), V(223.8, -381.1, 0)),  # 0
    Part.LineSegment(V(223.8, -381.1, 0), V(376.2, -381.1, 0)),  # 1
    Part.LineSegment(V(376.2, -381.1, 0), V(376.2, -406.4, 0)),  # 2
    Part.LineSegment(V(376.2, -406.4, 0), V(223.8, -406.4, 0)),  # 3
    Part.Circle(V(236.5, -393.8, 0), V(0, 0, 1), 3.6),  # 4
    Part.Circle(V(261.9, -393.8, 0), V(0, 0, 1), 3.6),  # 5
    Part.Circle(V(287.3, -393.8, 0), V(0, 0, 1), 3.6),  # 6
    Part.Circle(V(312.7, -393.8, 0), V(0, 0, 1), 3.6),  # 7
    Part.Circle(V(338.1, -393.8, 0), V(0, 0, 1), 3.6),  # 8
    Part.Circle(V(363.5, -393.8, 0), V(0, 0, 1), 3.6),  # 9
], False)
sketch10.addConstraint([
    Sketcher.Constraint("Coincident", 0, 2, 1, 1),
    Sketcher.Constraint("Coincident", 1, 2, 2, 1),
    Sketcher.Constraint("Coincident", 2, 2, 3, 1),
    Sketcher.Constraint("Coincident", 3, 2, 0, 1),
    Sketcher.Constraint("Vertical", 0),
    Sketcher.Constraint("Horizontal", 1),
    Sketcher.Constraint("Vertical", 2),
    Sketcher.Constraint("Horizontal", 3),
    Sketcher.Constraint("Equal", 4, 5),
    Sketcher.Constraint("Equal", 5, 6),
    Sketcher.Constraint("Equal", 6, 7),
    Sketcher.Constraint("Equal", 7, 8),
    Sketcher.Constraint("Equal", 8, 9),
    Sketcher.Constraint("Horizontal", 4, 3, 5, 3),
    Sketcher.Constraint("Horizontal", 5, 3, 6, 3),
    Sketcher.Constraint("Horizontal", 6, 3, 7, 3),
    Sketcher.Constraint("Horizontal", 7, 3, 8, 3),
    Sketcher.Constraint("Horizontal", 8, 3, 9, 3),
    Sketcher.Constraint("DistanceX", 1, 1, 1, 2, Q("6 in")),
    Sketcher.Constraint("DistanceY", 0, 1, 0, 2, Q("1 in")),
    Sketcher.Constraint("Diameter", 4, Q("0.281 in")),
    Sketcher.Constraint("DistanceX", 4, 3, 5, 3, Q("1 in")),
    Sketcher.Constraint("DistanceX", 5, 3, 6, 3, Q("1 in")),
    Sketcher.Constraint("DistanceX", 6, 3, 7, 3, Q("1 in")),
    Sketcher.Constraint("DistanceX", 7, 3, 8, 3, Q("1 in")),
    Sketcher.Constraint("DistanceX", 8, 3, 9, 3, Q("1 in")),
    Sketcher.Constraint("DistanceX", 0, 2, 4, 3, Q("0.5 in")),
    Sketcher.Constraint("DistanceY", 4, 3, 0, 2, Q("0.5 in")),
    Sketcher.Constraint("DistanceX", -1, 1, 4, 3, Q("236.5 mm")),
    Sketcher.Constraint("DistanceY", 4, 3, -1, 1, Q("393.75 mm")),
])
sketch10.setExpression("Constraints[18]", "Params.sketch10_width")
sketch10.setExpression("Constraints[19]", "Params.sketch10_height")
sketch10.setExpression("Constraints[20]", "Params.sketch10_diameter")
pad5 = body5.newObject("PartDesign::Pad", "Pad004")
pad5.Profile = sketch10
pad5.setExpression("Length", "Params.pad5_length")
pad5.Reversed = True
body6 = doc.addObject("PartDesign::Body", "Body005")

# Sketch on XZ plane
sketch11 = body6.newObject("Sketcher::SketchObject", "Sketch010")
sketch11.AttachmentSupport = (doc.getObject("XZ_Plane005"), [""])
sketch11.MapMode = "FlatFace"
sketch11.AttachmentOffset = App.Placement(V(0, 0, -1 * 25.4), App.Rotation())
sketch11.addGeometry([
    Part.LineSegment(V(729.7, -200.8, 0), V(729.7, -99.2, 0)),  # 0
    Part.LineSegment(V(729.7, -99.2, 0), V(755.1, -99.2, 0)),  # 1
    Part.LineSegment(V(755.1, -99.2, 0), V(755.1, -200.8, 0)),  # 2
    Part.LineSegment(V(755.1, -200.8, 0), V(729.7, -200.8, 0)),  # 3
    Part.Circle(V(742.4, -111.9, 0), V(0, 0, 1), 3.6),  # 4
    Part.Circle(V(742.4, -137.3, 0), V(0, 0, 1), 3.6),  # 5
    Part.Circle(V(742.4, -162.7, 0), V(0, 0, 1), 3.6),  # 6
    Part.Circle(V(742.4, -188.1, 0), V(0, 0, 1), 3.6),  # 7
], False)
sketch11.addConstraint([
    Sketcher.Constraint("Coincident", 0, 2, 1, 1),
    Sketcher.Constraint("Coincident", 1, 2, 2, 1),
    Sketcher.Constraint("Coincident", 2, 2, 3, 1),
    Sketcher.Constraint("Coincident", 3, 2, 0, 1),
    Sketcher.Constraint("Vertical", 0),
    Sketcher.Constraint("Horizontal", 1),
    Sketcher.Constraint("Vertical", 2),
    Sketcher.Constraint("Horizontal", 3),
    Sketcher.Constraint("Equal", 4, 5),
    Sketcher.Constraint("Equal", 5, 6),
    Sketcher.Constraint("Equal", 6, 7),
    Sketcher.Constraint("Vertical", 4, 3, 5, 3),
    Sketcher.Constraint("Vertical", 5, 3, 6, 3),
    Sketcher.Constraint("Vertical", 6, 3, 7, 3),
    Sketcher.Constraint("DistanceX", 1, 1, 1, 2, Q("1 in")),
    Sketcher.Constraint("DistanceY", 0, 1, 0, 2, Q("4 in")),
    Sketcher.Constraint("Diameter", 4, Q("0.281 in")),
    Sketcher.Constraint("DistanceY", 5, 3, 4, 3, Q("1 in")),
    Sketcher.Constraint("DistanceY", 6, 3, 5, 3, Q("1 in")),
    Sketcher.Constraint("DistanceY", 7, 3, 6, 3, Q("1 in")),
    Sketcher.Constraint("DistanceX", 0, 2, 4, 3, Q("0.5 in")),
    Sketcher.Constraint("DistanceY", 4, 3, 0, 2, Q("0.5 in")),
    Sketcher.Constraint("DistanceX", -1, 1, 4, 3, Q("742.392 mm")),
    Sketcher.Constraint("DistanceY", 4, 3, -1, 1, Q("111.9 mm")),
])
sketch11.setExpression("Constraints[14]", "Params.sketch11_width")
sketch11.setExpression("Constraints[15]", "Params.sketch11_height")
sketch11.setExpression("Constraints[16]", "Params.sketch11_diameter")
pad6 = body6.newObject("PartDesign::Pad", "Pad005")
pad6.Profile = sketch11
pad6.setExpression("Length", "Params.pad6_length")
pad6.Reversed = True
body2.Visibility = False
body3.Visibility = False
body4.Visibility = False
body5.Visibility = False
body6.Visibility = False

doc.recompute()
